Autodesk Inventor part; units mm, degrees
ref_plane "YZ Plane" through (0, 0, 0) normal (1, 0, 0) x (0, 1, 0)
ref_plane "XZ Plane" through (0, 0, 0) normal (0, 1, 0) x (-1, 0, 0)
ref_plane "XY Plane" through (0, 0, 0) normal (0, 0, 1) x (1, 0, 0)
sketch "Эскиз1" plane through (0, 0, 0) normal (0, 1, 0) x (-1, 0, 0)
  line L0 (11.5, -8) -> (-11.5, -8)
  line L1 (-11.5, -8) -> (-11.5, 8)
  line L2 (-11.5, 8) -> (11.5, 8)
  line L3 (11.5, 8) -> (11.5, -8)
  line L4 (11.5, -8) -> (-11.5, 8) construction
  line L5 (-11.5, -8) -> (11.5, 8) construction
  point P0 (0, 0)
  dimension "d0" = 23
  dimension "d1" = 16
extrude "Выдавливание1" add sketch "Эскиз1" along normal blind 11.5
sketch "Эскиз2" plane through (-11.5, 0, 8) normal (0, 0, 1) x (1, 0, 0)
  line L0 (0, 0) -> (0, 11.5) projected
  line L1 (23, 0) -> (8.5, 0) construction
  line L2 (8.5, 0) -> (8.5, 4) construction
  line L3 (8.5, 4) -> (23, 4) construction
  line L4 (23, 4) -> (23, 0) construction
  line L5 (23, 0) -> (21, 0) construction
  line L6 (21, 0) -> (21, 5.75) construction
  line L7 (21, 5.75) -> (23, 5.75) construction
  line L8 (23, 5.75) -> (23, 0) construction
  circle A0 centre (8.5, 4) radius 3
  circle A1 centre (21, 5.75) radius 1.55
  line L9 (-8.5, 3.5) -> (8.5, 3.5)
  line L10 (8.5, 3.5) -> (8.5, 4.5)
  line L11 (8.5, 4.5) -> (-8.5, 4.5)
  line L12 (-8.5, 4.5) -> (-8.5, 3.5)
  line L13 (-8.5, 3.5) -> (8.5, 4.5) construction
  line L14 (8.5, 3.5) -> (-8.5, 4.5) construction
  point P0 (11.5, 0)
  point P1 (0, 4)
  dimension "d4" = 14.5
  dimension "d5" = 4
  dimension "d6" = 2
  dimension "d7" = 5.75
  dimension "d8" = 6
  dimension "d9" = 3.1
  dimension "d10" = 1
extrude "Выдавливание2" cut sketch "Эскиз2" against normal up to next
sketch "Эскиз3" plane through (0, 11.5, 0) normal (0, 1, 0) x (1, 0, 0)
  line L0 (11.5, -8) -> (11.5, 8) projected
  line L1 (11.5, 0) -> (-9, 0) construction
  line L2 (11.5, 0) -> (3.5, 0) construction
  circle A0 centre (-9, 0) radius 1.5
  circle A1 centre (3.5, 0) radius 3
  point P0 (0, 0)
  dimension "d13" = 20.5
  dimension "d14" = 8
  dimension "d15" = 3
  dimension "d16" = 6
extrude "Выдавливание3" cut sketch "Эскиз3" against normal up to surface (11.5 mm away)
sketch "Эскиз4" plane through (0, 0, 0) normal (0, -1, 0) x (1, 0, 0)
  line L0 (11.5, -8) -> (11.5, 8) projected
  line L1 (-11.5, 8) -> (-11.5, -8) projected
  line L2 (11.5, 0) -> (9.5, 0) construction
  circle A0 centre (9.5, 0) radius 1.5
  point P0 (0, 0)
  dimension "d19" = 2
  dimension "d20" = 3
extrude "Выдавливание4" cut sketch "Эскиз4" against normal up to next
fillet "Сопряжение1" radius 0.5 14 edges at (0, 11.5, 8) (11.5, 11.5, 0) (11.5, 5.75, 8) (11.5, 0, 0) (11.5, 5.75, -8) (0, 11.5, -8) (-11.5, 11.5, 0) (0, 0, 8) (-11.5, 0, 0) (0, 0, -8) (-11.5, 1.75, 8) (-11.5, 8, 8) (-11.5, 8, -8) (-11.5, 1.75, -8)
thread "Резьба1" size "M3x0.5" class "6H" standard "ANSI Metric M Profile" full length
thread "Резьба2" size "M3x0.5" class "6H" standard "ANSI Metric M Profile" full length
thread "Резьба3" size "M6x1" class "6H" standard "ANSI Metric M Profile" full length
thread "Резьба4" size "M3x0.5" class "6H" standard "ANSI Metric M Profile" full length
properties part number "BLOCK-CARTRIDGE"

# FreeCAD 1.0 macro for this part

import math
import FreeCAD as App
import Part
import Sketcher
Q = App.Units.Quantity


def edges_at(feature, points):
    """Names of the edges that pass closest to the given points."""
    edges = feature.Shape.Edges
    near = lambda p: min(range(len(edges)), key=lambda i: edges[i].distToShape(Part.Vertex(*p))[0])
    return sorted({f"Edge{near(p) + 1}" for p in points})

doc = App.newDocument("Part")
body = doc.addObject("PartDesign::Body", "Body")

# Sketch on XZ plane
sketch1 = doc.addObject("Sketcher::SketchObject", "Sketch")
body.addObject(sketch1)
sketch1.AttachmentSupport = (doc.XZ_Plane, [""])
sketch1.MapMode = "FlatFace"
sketch1.addGeometry([
    Part.LineSegment(App.Vector(12, -8, 0), App.Vector(-12, -8, 0)),
    Part.LineSegment(App.Vector(-12, -8, 0), App.Vector(-12, 8, 0)),
    Part.LineSegment(App.Vector(-12, 8, 0), App.Vector(12, 8, 0)),
    Part.LineSegment(App.Vector(12, 8, 0), App.Vector(12, -8, 0)),
], False)
sketch1.addConstraint([
    Sketcher.Constraint("Coincident", 0, 2, 1, 1),
    Sketcher.Constraint("Coincident", 1, 2, 2, 1),
    Sketcher.Constraint("Coincident", 2, 2, 3, 1),
    Sketcher.Constraint("Coincident", 3, 2, 0, 1),
    Sketcher.Constraint("Horizontal", 0),
    Sketcher.Constraint("Vertical", 1),
    Sketcher.Constraint("Horizontal", 2),
    Sketcher.Constraint("Vertical", 3),
    Sketcher.Constraint("Symmetric", 0, 2, 2, 2, -1, 1),
    Sketcher.Constraint("DistanceX", 0, 2, 0, 1, Q("23 mm")),
    Sketcher.Constraint("DistanceY", 1, 1, 1, 2, Q("16 mm")),
])
pad1 = doc.addObject("PartDesign::Pad", "Pad")
body.addObject(pad1)
pad1.Profile = sketch1
pad1.Length = 11.5
pad1.Reversed = True

# Sketch on XY plane
sketch2 = doc.addObject("Sketcher::SketchObject", "Sketch001")
body.addObject(sketch2)
sketch2.AttachmentSupport = (doc.XY_Plane, [""])
sketch2.MapMode = "FlatFace"
sketch2.AttachmentOffset = App.Placement(App.Vector(0, 0, 8), App.Rotation())
sketch2.addGeometry([
    Part.LineSegment(App.Vector(-20, 3.5, 0), App.Vector(-6, 3.5, 0)),  # 0
    Part.ArcOfCircle(Part.Circle(App.Vector(-3, 4, 0), App.Vector(0, 0, 1), 3), math.radians(-170), math.radians(170)),  # 1
    Part.LineSegment(App.Vector(-6, 4.5, 0), App.Vector(-20, 4.5, 0)),  # 2
    Part.LineSegment(App.Vector(-20, 4.5, 0), App.Vector(-20, 3.5, 0)),  # 3
    Part.Circle(App.Vector(9.5, 5.8, 0), App.Vector(0, 0, 1), 1.6),  # 4
], False)
sketch2.addConstraint([
    Sketcher.Constraint("Coincident", 0, 2, 1, 1),
    Sketcher.Constraint("Coincident", 1, 2, 2, 1),
    Sketcher.Constraint("Coincident", 2, 2, 3, 1),
    Sketcher.Constraint("Coincident", 3, 2, 0, 1),
    Sketcher.Constraint("Horizontal", 0),
    Sketcher.Constraint("Horizontal", 2),
    Sketcher.Constraint("Vertical", 3),
    Sketcher.Constraint("Vertical", 0, 2, 1, 2),
    Sketcher.Constraint("Radius", 1, Q("3 mm")),
    Sketcher.Constraint("Diameter", 4, Q("3.1 mm")),
    Sketcher.Constraint("DistanceY", 3, 2, 3, 1, Q("1 mm")),
    Sketcher.Constraint("DistanceY", -1, 1, 1, 3, Q("4 mm")),
    Sketcher.Constraint("DistanceY", -1, 1, 4, 3, Q("5.75 mm")),
    Sketcher.Constraint("DistanceX", 1, 3, -1, 1, Q("3 mm")),
    Sketcher.Constraint("DistanceX", 2, 2, -1, 1, Q("20 mm")),
    Sketcher.Constraint("DistanceX", -1, 1, 4, 3, Q("9.5 mm")),
])
pocket1 = doc.addObject("PartDesign::Pocket", "Pocket")
body.addObject(pocket1)
pocket1.Profile = sketch2
pocket1.Type = "UpToFirst"

# Sketch on XZ plane
sketch3 = doc.addObject("Sketcher::SketchObject", "Sketch002")
body.addObject(sketch3)
sketch3.AttachmentSupport = (doc.XZ_Plane, [""])
sketch3.MapMode = "FlatFace"
sketch3.AttachmentOffset = App.Placement(App.Vector(0, 0, -11.5), App.Rotation())
sketch3.addGeometry([
    Part.Circle(App.Vector(-9, 0, 0), App.Vector(0, 0, 1), 1.5),
    Part.Circle(App.Vector(3.5, 0, 0), App.Vector(0, 0, 1), 3),
], False)
sketch3.addConstraint([
    Sketcher.Constraint("PointOnObject", 0, 3, -1),
    Sketcher.Constraint("PointOnObject", 1, 3, -1),
    Sketcher.Constraint("Diameter", 0, Q("3 mm")),
    Sketcher.Constraint("Diameter", 1, Q("6 mm")),
    Sketcher.Constraint("DistanceX", 0, 3, -1, 1, Q("9 mm")),
    Sketcher.Constraint("DistanceX", -1, 1, 1, 3, Q("3.5 mm")),
])
pocket2 = doc.addObject("PartDesign::Pocket", "Pocket001")
body.addObject(pocket2)
pocket2.Profile = sketch3
pocket2.Length = 11.5
pocket2.Reversed = True

# Sketch on XZ plane
sketch4 = doc.addObject("Sketcher::SketchObject", "Sketch003")
body.addObject(sketch4)
sketch4.AttachmentSupport = (doc.XZ_Plane, [""])
sketch4.MapMode = "FlatFace"
sketch4.addGeometry(Part.Circle(App.Vector(9.5, 0, 0), App.Vector(0, 0, 1), 1.5), False)
sketch4.addConstraint([
    Sketcher.Constraint("PointOnObject", 0, 3, -1),
    Sketcher.Constraint("Diameter", 0, Q("3 mm")),
    Sketcher.Constraint("DistanceX", -1, 1, 0, 3, Q("9.5 mm")),
])
pocket3 = doc.addObject("PartDesign::Pocket", "Pocket002")
body.addObject(pocket3)
pocket3.Profile = sketch4
pocket3.Type = "UpToFirst"
doc.recompute()

fillet = doc.addObject("PartDesign::Fillet", "Fillet")
body.addObject(fillet)
fillet.Base = (pocket3, edges_at(pocket3, [
    (0, 11.5, 8),
    (11.5, 11.5, 0),
    (11.5, 5.75, 8),
    (11.5, 0, 0),
    (11.5, 5.75, -8),
    (0, 11.5, -8),
    (-11.5, 11.5, 0),
    (0, 0, 8),
    (-11.5, 0, 0),
    (0, 0, -8),
    (-11.5, 1.75, 8),
    (-11.5, 8, 8),
    (-11.5, 8, -8),
    (-11.5, 1.75, -8),
]))
fillet.Radius = 0.5

doc.recompute()
